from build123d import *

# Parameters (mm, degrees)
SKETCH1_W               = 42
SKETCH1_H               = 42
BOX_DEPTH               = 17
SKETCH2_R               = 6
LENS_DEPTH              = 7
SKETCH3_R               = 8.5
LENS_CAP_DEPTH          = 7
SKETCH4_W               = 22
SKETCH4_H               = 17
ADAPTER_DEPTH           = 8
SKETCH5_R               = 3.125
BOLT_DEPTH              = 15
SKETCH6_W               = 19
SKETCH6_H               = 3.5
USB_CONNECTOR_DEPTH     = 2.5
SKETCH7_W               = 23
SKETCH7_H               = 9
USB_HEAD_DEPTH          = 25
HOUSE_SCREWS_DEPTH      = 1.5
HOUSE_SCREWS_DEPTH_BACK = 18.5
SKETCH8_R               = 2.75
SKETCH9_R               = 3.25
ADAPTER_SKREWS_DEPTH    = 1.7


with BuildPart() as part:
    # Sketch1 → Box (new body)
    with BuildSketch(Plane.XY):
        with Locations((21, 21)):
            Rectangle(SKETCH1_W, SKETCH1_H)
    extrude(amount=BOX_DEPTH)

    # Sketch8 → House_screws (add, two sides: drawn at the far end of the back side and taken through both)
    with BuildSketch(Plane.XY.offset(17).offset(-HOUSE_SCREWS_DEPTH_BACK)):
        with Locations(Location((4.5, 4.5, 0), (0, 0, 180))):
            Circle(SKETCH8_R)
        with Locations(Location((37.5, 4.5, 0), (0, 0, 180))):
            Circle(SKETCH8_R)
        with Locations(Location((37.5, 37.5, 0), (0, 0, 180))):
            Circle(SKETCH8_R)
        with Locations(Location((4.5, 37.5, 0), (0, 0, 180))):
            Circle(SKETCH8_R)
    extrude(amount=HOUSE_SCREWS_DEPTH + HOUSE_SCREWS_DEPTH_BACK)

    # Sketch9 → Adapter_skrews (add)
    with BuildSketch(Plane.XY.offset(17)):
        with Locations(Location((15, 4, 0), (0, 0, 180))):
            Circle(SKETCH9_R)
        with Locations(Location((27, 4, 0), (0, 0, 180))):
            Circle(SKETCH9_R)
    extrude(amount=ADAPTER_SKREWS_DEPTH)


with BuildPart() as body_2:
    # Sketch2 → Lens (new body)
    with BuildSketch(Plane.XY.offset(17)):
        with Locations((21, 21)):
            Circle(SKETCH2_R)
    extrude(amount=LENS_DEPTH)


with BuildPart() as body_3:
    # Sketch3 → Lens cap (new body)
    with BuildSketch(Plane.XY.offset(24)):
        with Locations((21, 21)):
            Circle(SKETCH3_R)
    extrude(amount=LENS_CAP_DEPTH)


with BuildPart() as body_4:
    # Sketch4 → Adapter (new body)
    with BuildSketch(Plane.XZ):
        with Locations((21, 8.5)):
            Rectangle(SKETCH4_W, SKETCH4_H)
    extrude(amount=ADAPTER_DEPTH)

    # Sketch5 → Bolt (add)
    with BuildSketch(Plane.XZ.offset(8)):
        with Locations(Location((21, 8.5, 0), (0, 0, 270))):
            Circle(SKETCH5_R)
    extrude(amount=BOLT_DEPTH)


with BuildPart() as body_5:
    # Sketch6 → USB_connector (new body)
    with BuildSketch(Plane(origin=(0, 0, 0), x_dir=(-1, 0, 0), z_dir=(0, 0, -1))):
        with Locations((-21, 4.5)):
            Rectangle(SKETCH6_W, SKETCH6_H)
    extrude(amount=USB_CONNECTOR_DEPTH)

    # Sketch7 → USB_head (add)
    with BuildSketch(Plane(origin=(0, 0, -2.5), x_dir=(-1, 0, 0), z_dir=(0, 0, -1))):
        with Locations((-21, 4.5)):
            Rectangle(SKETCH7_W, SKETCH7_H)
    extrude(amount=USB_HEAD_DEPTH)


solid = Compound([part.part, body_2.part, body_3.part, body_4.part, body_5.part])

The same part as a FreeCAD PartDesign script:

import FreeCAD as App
import Part
import Sketcher


def add_polygon(sketch, points):
    """Adds a closed chain of lines whose ends are joined by coincident constraints."""
    first, n = sketch.GeometryCount, len(points)
    for a, b in zip(points, points[1:] + points[:1]):
        sketch.addGeometry(Part.LineSegment(App.Vector(*a, 0), App.Vector(*b, 0)), False)
    for i in range(n):
        sketch.addConstraint(Sketcher.Constraint("Coincident", first + i, 2, first + (i + 1) % n, 1))

doc = App.newDocument("Part")
params = doc.addObject("Spreadsheet::Sheet", "Params")
for row, (alias, value) in enumerate([
    ("sketch1_width", "42 mm"),
    ("pad1_length", "17 mm"),
    ("sketch2_diameter", "5.5 mm"),
    ("pad2_length", "1.5 mm"),
    ("pad2_length2", "18.5 mm"),
    ("sketch3_diameter", "6.5 mm"),
    ("pad3_length", "1.7 mm"),
    ("sketch4_diameter", "12 mm"),
    ("pad4_length", "7 mm"),
    ("sketch5_diameter", "17 mm"),
    ("pad5_length", "7 mm"),
    ("sketch6_width", "22 mm"),
    ("sketch6_height", "17 mm"),
    ("pad6_length", "8 mm"),
    ("sketch7_diameter", "6.25 mm"),
    ("pad7_length", "15 mm"),
    ("sketch8_width", "19 mm"),
    ("sketch8_height", "3.5 mm"),
    ("pad8_length", "2.5 mm"),
    ("sketch9_width", "23 mm"),
    ("sketch9_height", "9 mm"),
    ("pad9_length", "25 mm"),
], start=1):
    params.set(f"A{row}", alias)
    params.set(f"B{row}", "=" + value)
    params.setAlias(f"B{row}", alias)

body = doc.addObject("PartDesign::Body", "Body")

# Sketch on XY plane
sketch1 = body.newObject("Sketcher::SketchObject", "Sketch")
sketch1.AttachmentSupport = (doc.getObject("XY_Plane"), [""])
sketch1.MapMode = "FlatFace"
add_polygon(sketch1, [(0, 42), (0, 0), (42, 0), (42, 42)])  # lines 0-3
sketch1.addConstraint(Sketcher.Constraint("Vertical", 0))
sketch1.addConstraint(Sketcher.Constraint("Horizontal", 1))
sketch1.addConstraint(Sketcher.Constraint("Vertical", 2))
sketch1.addConstraint(Sketcher.Constraint("Horizontal", 3))
sketch1.addConstraint(Sketcher.Constraint("Coincident", 0, 2, -1, 1))
sketch1.addConstraint(Sketcher.Constraint("Equal", 3, 0))
sketch1.addConstraint(Sketcher.Constraint("DistanceX", 1, 1, 1, 2, 42.0))
sketch1.setExpression("Constraints[10]", "Params.sketch1_width")
pad1 = body.newObject("PartDesign::Pad", "Pad")
pad1.Profile = sketch1
pad1.setExpression("Length", "Params.pad1_length")

# Sketch on XY plane
sketch2 = body.newObject("Sketcher::SketchObject", "Sketch001")
sketch2.AttachmentSupport = (doc.getObject("XY_Plane"), [""])
sketch2.MapMode = "FlatFace"
sketch2.AttachmentOffset = App.Placement(App.Vector(0, 0, 17), App.Rotation())
sketch2.addGeometry(Part.Circle(App.Vector(4.5, 4.5, 0), App.Vector(0, 0, 1), 2.8), False)
sketch2.addGeometry(Part.Circle(App.Vector(37.5, 4.5, 0), App.Vector(0, 0, 1), 2.8), False)
sketch2.addGeometry(Part.Circle(App.Vector(37.5, 37.5, 0), App.Vector(0, 0, 1), 2.8), False)
sketch2.addGeometry(Part.Circle(App.Vector(4.5, 37.5, 0), App.Vector(0, 0, 1), 2.8), False)
sketch2.addConstraint(Sketcher.Constraint("Equal", 0, 1))
sketch2.addConstraint(Sketcher.Constraint("Equal", 1, 2))
sketch2.addConstraint(Sketcher.Constraint("Equal", 2, 3))
sketch2.addConstraint(Sketcher.Constraint("Horizontal", 0, 3, 1, 3))
sketch2.addConstraint(Sketcher.Constraint("Horizontal", 2, 3, 3, 3))
sketch2.addConstraint(Sketcher.Constraint("Vertical", 1, 3, 2, 3))
sketch2.addConstraint(Sketcher.Constraint("Vertical", 0, 3, 3, 3))
sketch2.addConstraint(Sketcher.Constraint("Diameter", 0, 5.5))
sketch2.addConstraint(Sketcher.Constraint("DistanceX", 0, 3, 1, 3, 33.0))
sketch2.addConstraint(Sketcher.Constraint("DistanceY", 1, 3, 2, 3, 33.0))
sketch2.addConstraint(Sketcher.Constraint("DistanceX", -1, 1, 0, 3, 4.5))
sketch2.addConstraint(Sketcher.Constraint("DistanceY", -1, 1, 0, 3, 4.5))
sketch2.setExpression("Constraints[7]", "Params.sketch2_diameter")
pad2 = body.newObject("PartDesign::Pad", "Pad001")
pad2.Profile = sketch2
pad2.Type = "TwoLengths"
pad2.setExpression("Length", "Params.pad2_length")
pad2.setExpression("Length2", "Params.pad2_length2")

# Sketch on XY plane
sketch3 = body.newObject("Sketcher::SketchObject", "Sketch002")
sketch3.AttachmentSupport = (doc.getObject("XY_Plane"), [""])
sketch3.MapMode = "FlatFace"
sketch3.AttachmentOffset = App.Placement(App.Vector(0, 0, 17), App.Rotation())
sketch3.addGeometry(Part.Circle(App.Vector(15, 4, 0), App.Vector(0, 0, 1), 3.2), False)
sketch3.addGeometry(Part.Circle(App.Vector(27, 4, 0), App.Vector(0, 0, 1), 3.2), False)
sketch3.addConstraint(Sketcher.Constraint("Equal", 0, 1))
sketch3.addConstraint(Sketcher.Constraint("Horizontal", 0, 3, 1, 3))
sketch3.addConstraint(Sketcher.Constraint("Diameter", 0, 6.5))
sketch3.addConstraint(Sketcher.Constraint("DistanceX", -1, 1, 0, 3, 15.0))
sketch3.addConstraint(Sketcher.Constraint("DistanceY", -1, 1, 0, 3, 4.0))
sketch3.addConstraint(Sketcher.Constraint("DistanceX", -1, 1, 1, 3, 27.0))
sketch3.setExpression("Constraints[2]", "Params.sketch3_diameter")
pad3 = body.newObject("PartDesign::Pad", "Pad002")
pad3.Profile = sketch3
pad3.setExpression("Length", "Params.pad3_length")
body2 = doc.addObject("PartDesign::Body", "Body001")

# Sketch on XY plane
sketch4 = body2.newObject("Sketcher::SketchObject", "Sketch003")
sketch4.AttachmentSupport = (doc.getObject("XY_Plane001"), [""])
sketch4.MapMode = "FlatFace"
sketch4.AttachmentOffset = App.Placement(App.Vector(0, 0, 17), App.Rotation())
sketch4.addGeometry(Part.Circle(App.Vector(21, 21, 0), App.Vector(0, 0, 1), 6), False)
sketch4.addConstraint(Sketcher.Constraint("Diameter", 0, 12.0))
sketch4.addConstraint(Sketcher.Constraint("DistanceX", -1, 1, 0, 3, 21.0))
sketch4.addConstraint(Sketcher.Constraint("DistanceY", -1, 1, 0, 3, 21.0))
sketch4.setExpression("Constraints[0]", "Params.sketch4_diameter")
pad4 = body2.newObject("PartDesign::Pad", "Pad003")
pad4.Profile = sketch4
pad4.setExpression("Length", "Params.pad4_length")
body3 = doc.addObject("PartDesign::Body", "Body002")

# Sketch on XY plane
sketch5 = body3.newObject("Sketcher::SketchObject", "Sketch004")
sketch5.AttachmentSupport = (doc.getObject("XY_Plane002"), [""])
sketch5.MapMode = "FlatFace"
sketch5.AttachmentOffset = App.Placement(App.Vector(0, 0, 24), App.Rotation())
sketch5.addGeometry(Part.Circle(App.Vector(21, 21, 0), App.Vector(0, 0, 1), 8), False)
sketch5.addConstraint(Sketcher.Constraint("Diameter", 0, 17.0))
sketch5.addConstraint(Sketcher.Constraint("DistanceX", -1, 1, 0, 3, 21.0))
sketch5.addConstraint(Sketcher.Constraint("DistanceY", -1, 1, 0, 3, 21.0))
sketch5.setExpression("Constraints[0]", "Params.sketch5_diameter")
pad5 = body3.newObject("PartDesign::Pad", "Pad004")
pad5.Profile = sketch5
pad5.setExpression("Length", "Params.pad5_length")
body4 = doc.addObject("PartDesign::Body", "Body003")

# Sketch on XZ plane
sketch6 = body4.newObject("Sketcher::SketchObject", "Sketch005")
sketch6.AttachmentSupport = (doc.getObject("XZ_Plane003"), [""])
sketch6.MapMode = "FlatFace"
add_polygon(sketch6, [(10, 17), (10, 0), (32, 0), (32, 17)])  # lines 0-3
sketch6.addConstraint(Sketcher.Constraint("Vertical", 0))
sketch6.addConstraint(Sketcher.Constraint("Horizontal", 1))
sketch6.addConstraint(Sketcher.Constraint("Vertical", 2))
sketch6.addConstraint(Sketcher.Constraint("Horizontal", 3))
sketch6.addConstraint(Sketcher.Constraint("PointOnObject", 0, 2, -1))
sketch6.addConstraint(Sketcher.Constraint("DistanceX", 1, 1, 1, 2, 22.0))
sketch6.addConstraint(Sketcher.Constraint("DistanceY", 0, 2, 0, 1, 17.0))
sketch6.addConstraint(Sketcher.Constraint("DistanceX", -1, 1, 0, 2, 10.0))
sketch6.setExpression("Constraints[9]", "Params.sketch6_width")
sketch6.setExpression("Constraints[10]", "Params.sketch6_height")
pad6 = body4.newObject("PartDesign::Pad", "Pad005")
pad6.Profile = sketch6
pad6.setExpression("Length", "Params.pad6_length")

# Sketch on XZ plane
sketch7 = body4.newObject("Sketcher::SketchObject", "Sketch006")
sketch7.AttachmentSupport = (doc.getObject("XZ_Plane003"), [""])
sketch7.MapMode = "FlatFace"
sketch7.AttachmentOffset = App.Placement(App.Vector(0, 0, 8), App.Rotation())
sketch7.addGeometry(Part.Circle(App.Vector(21, 8.5, 0), App.Vector(0, 0, 1), 3.1), False)
sketch7.addConstraint(Sketcher.Constraint("Diameter", 0, 6.25))
sketch7.addConstraint(Sketcher.Constraint("DistanceX", -1, 1, 0, 3, 21.0))
sketch7.addConstraint(Sketcher.Constraint("DistanceY", -1, 1, 0, 3, 8.5))
sketch7.setExpression("Constraints[0]", "Params.sketch7_diameter")
pad7 = body4.newObject("PartDesign::Pad", "Pad006")
pad7.Profile = sketch7
pad7.setExpression("Length", "Params.pad7_length")
body5 = doc.addObject("PartDesign::Body", "Body004")

# Sketch on XY plane
sketch8 = body5.newObject("Sketcher::SketchObject", "Sketch007")
sketch8.AttachmentSupport = (doc.getObject("XY_Plane004"), [""])
sketch8.MapMode = "FlatFace"
add_polygon(sketch8, [(30.5, 6.2), (30.5, 2.8), (11.5, 2.8), (11.5, 6.2)])  # lines 0-3
sketch8.addConstraint(Sketcher.Constraint("Vertical", 0))
sketch8.addConstraint(Sketcher.Constraint("Horizontal", 1))
sketch8.addConstraint(Sketcher.Constraint("Vertical", 2))
sketch8.addConstraint(Sketcher.Constraint("Horizontal", 3))
sketch8.addConstraint(Sketcher.Constraint("DistanceX", 1, 2, 1, 1, 19.0))
sketch8.addConstraint(Sketcher.Constraint("DistanceY", 0, 2, 0, 1, 3.5))
sketch8.addConstraint(Sketcher.Constraint("DistanceX", -1, 1, 0, 2, 30.5))
sketch8.addConstraint(Sketcher.Constraint("DistanceY", -1, 1, 0, 2, 2.75))
sketch8.setExpression("Constraints[8]", "Params.sketch8_width")
sketch8.setExpression("Constraints[9]", "Params.sketch8_height")
pad8 = body5.newObject("PartDesign::Pad", "Pad007")
pad8.Profile = sketch8
pad8.setExpression("Length", "Params.pad8_length")
pad8.Reversed = True

# Sketch on XY plane
sketch9 = body5.newObject("Sketcher::SketchObject", "Sketch008")
sketch9.AttachmentSupport = (doc.getObject("XY_Plane004"), [""])
sketch9.MapMode = "FlatFace"
sketch9.AttachmentOffset = App.Placement(App.Vector(0, 0, -2.5), App.Rotation())
add_polygon(sketch9, [(32, 9), (32, 0), (10, 0), (10, 9)])  # lines 0-3
sketch9.addConstraint(Sketcher.Constraint("Vertical", 0))
sketch9.addConstraint(Sketcher.Constraint("Horizontal", 1))
sketch9.addConstraint(Sketcher.Constraint("Vertical", 2))
sketch9.addConstraint(Sketcher.Constraint("Horizontal", 3))
sketch9.addConstraint(Sketcher.Constraint("PointOnObject", 0, 2, -1))
sketch9.addConstraint(Sketcher.Constraint("DistanceX", 1, 2, 1, 1, 23.0))
sketch9.addConstraint(Sketcher.Constraint("DistanceY", 0, 2, 0, 1, 9.0))
sketch9.addConstraint(Sketcher.Constraint("DistanceX", -1, 1, 0, 2, 32.5))
sketch9.setExpression("Constraints[9]", "Params.sketch9_width")
sketch9.setExpression("Constraints[10]", "Params.sketch9_height")
pad9 = body5.newObject("PartDesign::Pad", "Pad008")
pad9.Profile = sketch9
pad9.setExpression("Length", "Params.pad9_length")
pad9.Reversed = True

doc.recompute()
